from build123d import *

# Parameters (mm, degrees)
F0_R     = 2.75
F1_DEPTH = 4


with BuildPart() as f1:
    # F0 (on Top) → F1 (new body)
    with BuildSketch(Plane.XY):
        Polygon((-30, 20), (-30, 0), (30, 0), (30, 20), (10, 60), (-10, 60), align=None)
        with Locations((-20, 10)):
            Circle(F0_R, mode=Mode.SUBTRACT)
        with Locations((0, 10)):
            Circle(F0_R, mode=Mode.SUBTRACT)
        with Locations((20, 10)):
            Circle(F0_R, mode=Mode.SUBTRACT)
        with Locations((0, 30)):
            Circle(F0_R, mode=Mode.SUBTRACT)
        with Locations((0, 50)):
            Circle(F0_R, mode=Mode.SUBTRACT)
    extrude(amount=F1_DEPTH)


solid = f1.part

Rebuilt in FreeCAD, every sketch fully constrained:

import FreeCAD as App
import Part
import Sketcher

doc = App.newDocument("Part")
params = doc.addObject("Spreadsheet::Sheet", "Params")
for row, (alias, value) in enumerate([
    ("sketch1_diameter", "5.5 mm"),
    ("sketch1_width", "60 mm"),
    ("sketch1_width2", "20 mm"),
    ("pad1_length", "4 mm"),
], start=1):
    params.set(f"A{row}", alias)
    params.set(f"B{row}", "=" + value)
    params.setAlias(f"B{row}", alias)

body = doc.addObject("PartDesign::Body", "Body")

sketch1 = body.newObject("Sketcher::SketchObject", "Sketch")
sketch1.AttachmentSupport = (doc.getObject("XY_Plane"), [""])
sketch1.MapMode = "FlatFace"
sketch1.addGeometry(Part.LineSegment(App.Vector(-30, 20, 0), App.Vector(-30, 0, 0)), False)
sketch1.addGeometry(Part.LineSegment(App.Vector(-30, 0, 0), App.Vector(30, 0, 0)), False)
sketch1.addGeometry(Part.LineSegment(App.Vector(30, 0, 0), App.Vector(30, 20, 0)), False)
sketch1.addGeometry(Part.LineSegment(App.Vector(30, 20, 0), App.Vector(10, 60, 0)), False)
sketch1.addGeometry(Part.LineSegment(App.Vector(10, 60, 0), App.Vector(-10, 60, 0)), False)
sketch1.addGeometry(Part.LineSegment(App.Vector(-10, 60, 0), App.Vector(-30, 20, 0)), False)
sketch1.addGeometry(Part.Circle(App.Vector(-20, 10, 0), App.Vector(0, 0, 1), 2.75), False)
sketch1.addGeometry(Part.Circle(App.Vector(0, 10, 0), App.Vector(0, 0, 1), 2.75), False)
sketch1.addGeometry(Part.Circle(App.Vector(20, 10, 0), App.Vector(0, 0, 1), 2.75), False)
sketch1.addGeometry(Part.Circle(App.Vector(0, 30, 0), App.Vector(0, 0, 1), 2.75), False)
sketch1.addGeometry(Part.Circle(App.Vector(0, 50, 0), App.Vector(0, 0, 1), 2.75), False)
sketch1.addConstraint(Sketcher.Constraint("Coincident", 0, 2, 1, 1))
sketch1.addConstraint(Sketcher.Constraint("Coincident", 1, 2, 2, 1))
sketch1.addConstraint(Sketcher.Constraint("Coincident", 2, 2, 3, 1))
sketch1.addConstraint(Sketcher.Constraint("Coincident", 3, 2, 4, 1))
sketch1.addConstraint(Sketcher.Constraint("Coincident", 4, 2, 5, 1))
sketch1.addConstraint(Sketcher.Constraint("Coincident", 5, 2, 0, 1))
sketch1.addConstraint(Sketcher.Constraint("Vertical", 0))
sketch1.addConstraint(Sketcher.Constraint("Horizontal", 1))
sketch1.addConstraint(Sketcher.Constraint("Vertical", 2))
sketch1.addConstraint(Sketcher.Constraint("Horizontal", 4))
sketch1.addConstraint(Sketcher.Constraint("Equal", 6, 7))
sketch1.addConstraint(Sketcher.Constraint("Equal", 7, 8))
sketch1.addConstraint(Sketcher.Constraint("Equal", 8, 9))
sketch1.addConstraint(Sketcher.Constraint("Equal", 9, 10))
sketch1.addConstraint(Sketcher.Constraint("Symmetric", 0, 2, 1, 2, -1, 1))
sketch1.addConstraint(Sketcher.Constraint("Symmetric", 6, 3, 8, 3, -2))
sketch1.addConstraint(Sketcher.Constraint("PointOnObject", 7, 3, -2))
sketch1.addConstraint(Sketcher.Constraint("PointOnObject", 9, 3, -2))
sketch1.addConstraint(Sketcher.Constraint("PointOnObject", 10, 3, -2))
sketch1.addConstraint(Sketcher.Constraint("Horizontal", 6, 3, 7, 3))
sketch1.addConstraint(Sketcher.Constraint("Horizontal", 2, 2, 5, 2))
sketch1.addConstraint(Sketcher.Constraint("Equal", 4, 0))
sketch1.addConstraint(Sketcher.Constraint("Equal", 3, 5))
sketch1.addConstraint(Sketcher.Constraint("Diameter", 6, 5.5))
sketch1.addConstraint(Sketcher.Constraint("DistanceX", 1, 1, 1, 2, 60.0))
sketch1.addConstraint(Sketcher.Constraint("DistanceX", 4, 2, 4, 1, 20.0))
sketch1.addConstraint(Sketcher.Constraint("DistanceX", 6, 3, -1, 1, 20.0))
sketch1.addConstraint(Sketcher.Constraint("DistanceY", -1, 1, 6, 3, 10.0))
sketch1.addConstraint(Sketcher.Constraint("DistanceY", -1, 1, 9, 3, 30.0))
sketch1.addConstraint(Sketcher.Constraint("DistanceY", -1, 1, 10, 3, 50.0))
sketch1.addConstraint(Sketcher.Constraint("DistanceY", -1, 1, 3, 2, 60.0))
sketch1.setExpression("Constraints[23]", "Params.sketch1_diameter")
sketch1.setExpression("Constraints[24]", "Params.sketch1_width")
sketch1.setExpression("Constraints[25]", "Params.sketch1_width2")
pad1 = body.newObject("PartDesign::Pad", "Pad")
pad1.Profile = sketch1
pad1.setExpression("Length", "Params.pad1_length")

doc.recompute()
